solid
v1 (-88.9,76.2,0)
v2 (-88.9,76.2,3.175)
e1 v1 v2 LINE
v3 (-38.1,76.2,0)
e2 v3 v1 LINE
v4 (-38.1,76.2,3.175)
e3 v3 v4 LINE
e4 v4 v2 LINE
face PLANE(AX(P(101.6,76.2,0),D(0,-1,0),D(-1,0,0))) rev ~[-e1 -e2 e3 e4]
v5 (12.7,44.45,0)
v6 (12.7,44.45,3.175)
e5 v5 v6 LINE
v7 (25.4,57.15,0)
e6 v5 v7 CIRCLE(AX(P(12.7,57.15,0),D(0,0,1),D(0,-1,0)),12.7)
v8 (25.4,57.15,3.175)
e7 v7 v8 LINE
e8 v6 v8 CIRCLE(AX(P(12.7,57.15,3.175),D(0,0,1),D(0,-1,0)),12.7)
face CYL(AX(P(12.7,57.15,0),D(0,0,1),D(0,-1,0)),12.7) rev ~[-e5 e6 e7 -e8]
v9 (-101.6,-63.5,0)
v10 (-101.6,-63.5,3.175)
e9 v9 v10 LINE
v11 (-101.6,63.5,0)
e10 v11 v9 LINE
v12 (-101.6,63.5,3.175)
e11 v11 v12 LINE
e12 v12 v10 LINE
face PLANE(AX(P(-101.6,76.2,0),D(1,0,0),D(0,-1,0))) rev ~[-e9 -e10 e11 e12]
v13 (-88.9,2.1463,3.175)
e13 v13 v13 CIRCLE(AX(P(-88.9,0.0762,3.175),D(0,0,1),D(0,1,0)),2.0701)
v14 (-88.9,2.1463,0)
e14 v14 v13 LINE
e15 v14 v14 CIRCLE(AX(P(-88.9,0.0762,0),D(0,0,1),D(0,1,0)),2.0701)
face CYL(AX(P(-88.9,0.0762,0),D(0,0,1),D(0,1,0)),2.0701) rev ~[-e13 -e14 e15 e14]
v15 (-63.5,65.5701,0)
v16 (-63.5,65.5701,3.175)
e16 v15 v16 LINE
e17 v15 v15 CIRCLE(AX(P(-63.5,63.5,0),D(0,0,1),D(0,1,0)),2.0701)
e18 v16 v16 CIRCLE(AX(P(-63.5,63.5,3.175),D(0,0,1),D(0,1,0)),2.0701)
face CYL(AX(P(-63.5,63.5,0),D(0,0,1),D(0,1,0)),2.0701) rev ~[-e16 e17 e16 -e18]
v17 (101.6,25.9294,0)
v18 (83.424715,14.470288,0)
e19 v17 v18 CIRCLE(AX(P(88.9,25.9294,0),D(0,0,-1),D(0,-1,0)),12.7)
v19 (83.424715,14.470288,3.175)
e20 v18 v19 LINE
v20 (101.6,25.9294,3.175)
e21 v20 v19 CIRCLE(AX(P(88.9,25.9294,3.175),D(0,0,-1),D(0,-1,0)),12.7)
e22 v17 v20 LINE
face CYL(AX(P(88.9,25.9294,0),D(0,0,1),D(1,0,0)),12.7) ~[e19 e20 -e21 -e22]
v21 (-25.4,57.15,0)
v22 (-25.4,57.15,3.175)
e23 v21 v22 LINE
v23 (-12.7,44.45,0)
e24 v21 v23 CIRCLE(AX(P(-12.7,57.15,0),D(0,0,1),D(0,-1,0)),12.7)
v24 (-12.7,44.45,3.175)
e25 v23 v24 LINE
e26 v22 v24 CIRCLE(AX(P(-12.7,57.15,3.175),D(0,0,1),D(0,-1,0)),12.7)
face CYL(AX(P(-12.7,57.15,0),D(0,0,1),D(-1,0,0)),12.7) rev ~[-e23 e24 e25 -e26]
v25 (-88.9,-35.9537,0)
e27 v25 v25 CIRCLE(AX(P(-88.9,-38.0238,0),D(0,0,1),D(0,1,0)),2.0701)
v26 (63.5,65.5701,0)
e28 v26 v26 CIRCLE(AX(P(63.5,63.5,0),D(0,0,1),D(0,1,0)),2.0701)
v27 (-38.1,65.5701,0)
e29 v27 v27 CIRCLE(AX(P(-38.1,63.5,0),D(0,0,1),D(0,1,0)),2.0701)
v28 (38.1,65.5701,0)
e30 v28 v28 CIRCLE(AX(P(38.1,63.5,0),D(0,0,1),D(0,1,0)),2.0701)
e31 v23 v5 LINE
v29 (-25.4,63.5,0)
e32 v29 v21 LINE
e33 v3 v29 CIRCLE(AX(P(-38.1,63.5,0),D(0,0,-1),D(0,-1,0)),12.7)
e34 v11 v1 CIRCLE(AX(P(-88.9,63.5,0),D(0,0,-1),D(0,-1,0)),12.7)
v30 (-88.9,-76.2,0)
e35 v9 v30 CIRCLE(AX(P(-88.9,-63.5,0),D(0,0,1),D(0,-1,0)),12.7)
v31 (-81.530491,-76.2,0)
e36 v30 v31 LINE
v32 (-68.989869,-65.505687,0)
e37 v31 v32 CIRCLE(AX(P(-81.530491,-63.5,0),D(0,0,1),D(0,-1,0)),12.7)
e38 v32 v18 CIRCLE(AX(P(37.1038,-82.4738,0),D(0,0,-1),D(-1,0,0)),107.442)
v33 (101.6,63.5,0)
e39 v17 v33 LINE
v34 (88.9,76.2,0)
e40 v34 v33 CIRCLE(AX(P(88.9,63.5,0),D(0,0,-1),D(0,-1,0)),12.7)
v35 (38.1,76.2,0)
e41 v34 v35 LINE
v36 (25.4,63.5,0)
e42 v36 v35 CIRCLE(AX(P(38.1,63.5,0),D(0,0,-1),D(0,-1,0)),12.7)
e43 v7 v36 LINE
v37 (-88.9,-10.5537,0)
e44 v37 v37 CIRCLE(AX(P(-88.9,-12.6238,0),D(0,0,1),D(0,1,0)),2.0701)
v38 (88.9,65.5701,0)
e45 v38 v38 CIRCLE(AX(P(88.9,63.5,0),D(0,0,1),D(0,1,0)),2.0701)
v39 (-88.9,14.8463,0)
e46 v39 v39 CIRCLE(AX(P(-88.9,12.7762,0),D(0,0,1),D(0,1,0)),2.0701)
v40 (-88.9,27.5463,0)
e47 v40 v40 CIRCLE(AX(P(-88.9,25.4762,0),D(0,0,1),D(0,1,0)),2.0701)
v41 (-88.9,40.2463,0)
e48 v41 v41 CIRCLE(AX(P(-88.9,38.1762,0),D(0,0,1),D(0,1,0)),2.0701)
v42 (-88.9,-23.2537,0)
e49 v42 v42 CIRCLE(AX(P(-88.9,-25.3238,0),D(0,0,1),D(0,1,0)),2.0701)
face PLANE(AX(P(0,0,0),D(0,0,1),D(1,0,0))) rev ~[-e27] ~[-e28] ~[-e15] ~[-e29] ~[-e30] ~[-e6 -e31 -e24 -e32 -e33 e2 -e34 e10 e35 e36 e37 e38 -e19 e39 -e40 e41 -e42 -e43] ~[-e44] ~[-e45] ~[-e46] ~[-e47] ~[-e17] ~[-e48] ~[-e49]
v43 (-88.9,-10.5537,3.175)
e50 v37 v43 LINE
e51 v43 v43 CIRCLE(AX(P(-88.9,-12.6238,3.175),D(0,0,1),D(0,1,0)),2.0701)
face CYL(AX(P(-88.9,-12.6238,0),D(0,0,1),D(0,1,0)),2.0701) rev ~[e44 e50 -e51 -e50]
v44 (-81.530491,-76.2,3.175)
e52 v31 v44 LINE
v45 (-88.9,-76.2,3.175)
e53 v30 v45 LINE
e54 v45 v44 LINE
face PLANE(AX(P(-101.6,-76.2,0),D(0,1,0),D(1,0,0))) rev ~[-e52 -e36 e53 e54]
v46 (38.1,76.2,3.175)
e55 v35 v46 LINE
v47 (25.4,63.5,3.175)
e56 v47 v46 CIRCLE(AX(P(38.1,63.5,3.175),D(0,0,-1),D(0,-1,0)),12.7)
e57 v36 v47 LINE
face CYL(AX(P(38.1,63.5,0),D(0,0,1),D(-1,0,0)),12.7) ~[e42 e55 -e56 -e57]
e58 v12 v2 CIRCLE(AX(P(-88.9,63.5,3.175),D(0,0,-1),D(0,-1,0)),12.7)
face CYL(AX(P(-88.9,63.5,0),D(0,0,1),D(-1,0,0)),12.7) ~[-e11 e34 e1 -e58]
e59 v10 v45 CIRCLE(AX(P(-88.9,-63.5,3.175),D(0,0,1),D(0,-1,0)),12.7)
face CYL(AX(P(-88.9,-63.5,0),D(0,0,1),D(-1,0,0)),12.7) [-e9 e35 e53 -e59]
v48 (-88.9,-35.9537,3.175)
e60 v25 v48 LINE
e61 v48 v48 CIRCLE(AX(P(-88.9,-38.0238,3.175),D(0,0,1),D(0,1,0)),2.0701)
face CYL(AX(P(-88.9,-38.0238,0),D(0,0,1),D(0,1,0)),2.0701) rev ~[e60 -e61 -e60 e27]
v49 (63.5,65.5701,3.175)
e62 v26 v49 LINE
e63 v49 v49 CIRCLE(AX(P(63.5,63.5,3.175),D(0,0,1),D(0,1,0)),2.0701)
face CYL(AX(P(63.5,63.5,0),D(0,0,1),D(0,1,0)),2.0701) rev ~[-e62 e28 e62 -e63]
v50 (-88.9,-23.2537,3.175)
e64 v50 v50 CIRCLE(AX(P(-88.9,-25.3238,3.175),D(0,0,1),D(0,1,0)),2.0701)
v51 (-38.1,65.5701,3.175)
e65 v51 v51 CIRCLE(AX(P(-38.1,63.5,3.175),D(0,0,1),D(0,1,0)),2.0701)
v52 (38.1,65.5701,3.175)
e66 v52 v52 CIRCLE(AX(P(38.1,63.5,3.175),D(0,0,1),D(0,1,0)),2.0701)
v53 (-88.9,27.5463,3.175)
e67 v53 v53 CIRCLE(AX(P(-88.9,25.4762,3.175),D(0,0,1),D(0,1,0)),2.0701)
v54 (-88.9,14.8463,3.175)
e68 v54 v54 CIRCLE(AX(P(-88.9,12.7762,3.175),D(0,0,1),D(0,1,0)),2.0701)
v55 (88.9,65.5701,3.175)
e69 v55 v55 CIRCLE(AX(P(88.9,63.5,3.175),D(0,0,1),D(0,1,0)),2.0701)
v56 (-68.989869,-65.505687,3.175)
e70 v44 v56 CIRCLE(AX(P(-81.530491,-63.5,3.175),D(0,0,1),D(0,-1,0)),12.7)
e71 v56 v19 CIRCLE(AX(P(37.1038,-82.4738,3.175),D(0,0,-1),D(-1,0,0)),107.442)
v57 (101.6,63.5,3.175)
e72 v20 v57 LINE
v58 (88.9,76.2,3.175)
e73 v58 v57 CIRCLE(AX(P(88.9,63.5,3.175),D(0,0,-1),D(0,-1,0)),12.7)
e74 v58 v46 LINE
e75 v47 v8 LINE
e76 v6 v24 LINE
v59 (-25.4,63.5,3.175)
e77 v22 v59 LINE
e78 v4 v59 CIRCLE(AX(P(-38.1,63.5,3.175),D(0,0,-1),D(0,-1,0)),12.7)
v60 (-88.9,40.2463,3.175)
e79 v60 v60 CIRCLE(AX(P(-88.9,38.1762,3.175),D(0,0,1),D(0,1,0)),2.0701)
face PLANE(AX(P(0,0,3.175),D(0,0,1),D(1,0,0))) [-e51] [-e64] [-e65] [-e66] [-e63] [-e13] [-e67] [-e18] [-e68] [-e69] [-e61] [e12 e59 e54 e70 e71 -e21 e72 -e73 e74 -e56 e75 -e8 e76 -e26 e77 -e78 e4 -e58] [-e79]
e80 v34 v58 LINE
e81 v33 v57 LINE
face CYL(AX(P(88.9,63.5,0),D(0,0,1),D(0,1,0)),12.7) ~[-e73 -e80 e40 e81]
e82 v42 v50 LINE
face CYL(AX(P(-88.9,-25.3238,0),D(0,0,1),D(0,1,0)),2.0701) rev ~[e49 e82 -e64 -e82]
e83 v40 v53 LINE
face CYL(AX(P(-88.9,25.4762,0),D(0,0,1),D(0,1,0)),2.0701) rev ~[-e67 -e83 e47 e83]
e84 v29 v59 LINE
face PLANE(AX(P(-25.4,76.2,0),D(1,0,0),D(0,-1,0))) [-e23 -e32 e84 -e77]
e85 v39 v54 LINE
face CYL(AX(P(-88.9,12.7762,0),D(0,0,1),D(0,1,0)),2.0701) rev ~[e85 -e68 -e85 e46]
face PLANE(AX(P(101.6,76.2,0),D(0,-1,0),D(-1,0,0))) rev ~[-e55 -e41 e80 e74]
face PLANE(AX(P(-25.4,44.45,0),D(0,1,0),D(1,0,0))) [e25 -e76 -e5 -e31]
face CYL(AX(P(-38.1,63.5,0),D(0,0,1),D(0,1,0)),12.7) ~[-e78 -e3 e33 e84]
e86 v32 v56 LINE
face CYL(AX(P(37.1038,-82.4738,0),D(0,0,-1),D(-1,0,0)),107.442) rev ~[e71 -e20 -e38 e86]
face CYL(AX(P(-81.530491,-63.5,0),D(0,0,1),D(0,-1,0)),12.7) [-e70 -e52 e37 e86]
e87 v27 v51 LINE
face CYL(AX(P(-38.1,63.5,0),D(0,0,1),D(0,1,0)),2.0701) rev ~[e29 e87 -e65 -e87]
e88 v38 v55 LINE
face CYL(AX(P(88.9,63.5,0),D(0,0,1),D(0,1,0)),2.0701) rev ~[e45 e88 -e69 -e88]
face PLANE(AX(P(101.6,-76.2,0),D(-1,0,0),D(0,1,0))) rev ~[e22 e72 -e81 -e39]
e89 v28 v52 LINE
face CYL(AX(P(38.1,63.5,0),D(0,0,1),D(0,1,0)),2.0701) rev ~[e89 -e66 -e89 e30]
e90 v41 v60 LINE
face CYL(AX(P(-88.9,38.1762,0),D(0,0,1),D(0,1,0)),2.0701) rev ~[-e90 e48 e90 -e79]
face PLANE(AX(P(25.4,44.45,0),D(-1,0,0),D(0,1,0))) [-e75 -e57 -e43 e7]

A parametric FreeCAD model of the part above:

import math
import FreeCAD as App
import Part
import Sketcher
from FreeCAD import Vector
Q = App.Units.Quantity


def edges_at(feature, points):
    """Names of the edges that pass closest to the given points."""
    edges = feature.Shape.Edges
    near = lambda p: min(range(len(edges)), key=lambda i: edges[i].distToShape(Part.Vertex(*p))[0])
    return sorted({f"Edge{near(p) + 1}" for p in points})

doc = App.newDocument("Part")
body = doc.addObject("PartDesign::Body", "Body")

# Sketch on XY plane
sketch1 = body.newObject("Sketcher::SketchObject", "Sketch")
sketch1.AttachmentSupport = (doc.getObject("XY_Plane"), [""])
sketch1.MapMode = "FlatFace"
sketch1.addGeometry([
    Part.LineSegment(Vector(-101.6, 76.2, 0), Vector(-101.6, -76.2, 0)),
    Part.LineSegment(Vector(-101.6, -76.2, 0), Vector(101.6, -76.2, 0)),
    Part.LineSegment(Vector(101.6, -76.2, 0), Vector(101.6, 76.2, 0)),
    Part.LineSegment(Vector(101.6, 76.2, 0), Vector(-101.6, 76.2, 0)),
], False)
sketch1.addConstraint([
    Sketcher.Constraint("Coincident", 0, 2, 1, 1),
    Sketcher.Constraint("Coincident", 1, 2, 2, 1),
    Sketcher.Constraint("Coincident", 2, 2, 3, 1),
    Sketcher.Constraint("Coincident", 3, 2, 0, 1),
    Sketcher.Constraint("Vertical", 0),
    Sketcher.Constraint("Horizontal", 1),
    Sketcher.Constraint("Vertical", 2),
    Sketcher.Constraint("Horizontal", 3),
    Sketcher.Constraint("Symmetric", 0, 2, 2, 2, -1, 1),
    Sketcher.Constraint("DistanceX", 1, 1, 1, 2, Q("8 in")),
    Sketcher.Constraint("DistanceY", 0, 2, 0, 1, Q("6 in")),
])
pad1 = body.newObject("PartDesign::Pad", "Pad")
pad1.Profile = sketch1
pad1.Length = Q("0.125 in")

# Sketch on XY plane
sketch2 = body.newObject("Sketcher::SketchObject", "Sketch001")
sketch2.AttachmentSupport = (doc.getObject("XY_Plane"), [""])
sketch2.MapMode = "FlatFace"
sketch2.addGeometry([
    Part.LineSegment(Vector(101.6, -76.2, 0), Vector(-70.1549, -76.2, 0)),
    Part.ArcOfCircle(Part.Circle(Vector(37.1038, -82.4738, 0), Vector(0, 0, 1), 107.442), math.radians(53.109422), math.radians(176.652457)),
    Part.LineSegment(Vector(101.6, 3.4565, 0), Vector(101.6, -76.2, 0)),
], False)
sketch2.addConstraint([
    Sketcher.Constraint("Coincident", 0, 2, 1, 2),
    Sketcher.Constraint("Coincident", 1, 1, 2, 1),
    Sketcher.Constraint("Coincident", 2, 2, 0, 1),
    Sketcher.Constraint("Horizontal", 0),
    Sketcher.Constraint("Vertical", 2),
    Sketcher.Constraint("Radius", 1, Q("4.23 in")),
    Sketcher.Constraint("DistanceY", 0, 2, -1, 1, Q("3 in")),
    Sketcher.Constraint("DistanceX", -1, 1, 1, 1, Q("4 in")),
    Sketcher.Constraint("DistanceX", 0, 2, 0, 1, Q("6.762 in")),
    Sketcher.Constraint("DistanceY", 1, 3, -1, 1, Q("3.247 in")),
])
pocket1 = body.newObject("PartDesign::Pocket", "Pocket")
pocket1.Profile = sketch2
pocket1.Length = Q("1 in")
pocket1.Reversed = True
doc.recompute()

fillet = body.newObject("PartDesign::Fillet", "Fillet")
fillet.Base = (pocket1, edges_at(pocket1, [
    (101.6, 76.2, 1.587),
    (-101.6, 76.2, 1.587),
    (-101.6, -76.2, 1.587),
    (-70.155, -76.2, 1.587),
    (101.6, 3.457, 1.587),
]))
fillet.Radius = Q("0.5 in")

# Sketch on XY plane
sketch3 = body.newObject("Sketcher::SketchObject", "Sketch002")
sketch3.AttachmentSupport = (doc.getObject("XY_Plane"), [""])
sketch3.MapMode = "FlatFace"
sketch3.addGeometry([
    Part.Circle(Vector(88.9, 63.5, 0), Vector(0, 0, 1), 2.0701),  # 0
    Part.Circle(Vector(63.5, 63.5, 0), Vector(0, 0, 1), 2.0701),  # 1
    Part.Circle(Vector(38.1, 63.5, 0), Vector(0, 0, 1), 2.0701),  # 2
    Part.Circle(Vector(12.7, 63.5, 0), Vector(0, 0, 1), 2.0701),  # 3
    Part.Circle(Vector(-12.7, 63.5, 0), Vector(0, 0, 1), 2.0701),  # 4
    Part.Circle(Vector(-38.1, 63.5, 0), Vector(0, 0, 1), 2.0701),  # 5
    Part.Circle(Vector(-63.5, 63.5, 0), Vector(0, 0, 1), 2.0701),  # 6
    Part.Circle(Vector(-88.9, 12.7762, 0), Vector(0, 0, 1), 2.0701),  # 7
    Part.Circle(Vector(-88.9, 0.0762, 0), Vector(0, 0, 1), 2.0701),  # 8
    Part.Circle(Vector(-88.9, -12.6238, 0), Vector(0, 0, 1), 2.0701),  # 9
    Part.Circle(Vector(-88.9, -25.3238, 0), Vector(0, 0, 1), 2.0701),  # 10
    Part.Circle(Vector(-88.9, -38.0238, 0), Vector(0, 0, 1), 2.0701),  # 11
    Part.Circle(Vector(-88.9, 25.4762, 0), Vector(0, 0, 1), 2.0701),  # 12
    Part.Circle(Vector(-88.9, 38.1762, 0), Vector(0, 0, 1), 2.0701),  # 13
], False)
sketch3.addConstraint([
    Sketcher.Constraint("Equal", 0, 1),
    Sketcher.Constraint("Equal", 1, 2),
    Sketcher.Constraint("Equal", 2, 3),
    Sketcher.Constraint("Equal", 3, 4),
    Sketcher.Constraint("Equal", 4, 5),
    Sketcher.Constraint("Equal", 5, 6),
    Sketcher.Constraint("Equal", 6, 7),
    Sketcher.Constraint("Equal", 7, 8),
    Sketcher.Constraint("Equal", 8, 9),
    Sketcher.Constraint("Equal", 9, 10),
    Sketcher.Constraint("Equal", 10, 11),
    Sketcher.Constraint("Equal", 11, 12),
    Sketcher.Constraint("Equal", 12, 13),
    Sketcher.Constraint("Symmetric", 3, 3, 4, 3, -2),
    Sketcher.Constraint("Symmetric", 2, 3, 5, 3, -2),
    Sketcher.Constraint("Symmetric", 1, 3, 6, 3, -2),
    Sketcher.Constraint("Horizontal", 0, 3, 1, 3),
    Sketcher.Constraint("Horizontal", 1, 3, 2, 3),
    Sketcher.Constraint("Horizontal", 2, 3, 3, 3),
    Sketcher.Constraint("Vertical", 7, 3, 8, 3),
    Sketcher.Constraint("Vertical", 8, 3, 9, 3),
    Sketcher.Constraint("Vertical", 9, 3, 10, 3),
    Sketcher.Constraint("Vertical", 10, 3, 11, 3),
    Sketcher.Constraint("Vertical", 11, 3, 12, 3),
    Sketcher.Constraint("Vertical", 12, 3, 13, 3),
    Sketcher.Constraint("Diameter", 0, Q("0.163 in")),
    Sketcher.Constraint("DistanceX", 1, 3, 0, 3, Q("1 in")),
    Sketcher.Constraint("DistanceX", 2, 3, 1, 3, Q("1 in")),
    Sketcher.Constraint("DistanceX", 3, 3, 2, 3, Q("1 in")),
    Sketcher.Constraint("DistanceX", 4, 3, 3, 3, Q("1 in")),
    Sketcher.Constraint("DistanceX", 7, 3, 6, 3, Q("1 in")),
    Sketcher.Constraint("DistanceY", 9, 3, 7, 3, Q("1 in")),
    Sketcher.Constraint("DistanceY", 10, 3, 8, 3, Q("1 in")),
    Sketcher.Constraint("DistanceY", 11, 3, 9, 3, Q("1 in")),
    Sketcher.Constraint("DistanceY", 8, 3, 12, 3, Q("1 in")),
    Sketcher.Constraint("DistanceY", 7, 3, 13, 3, Q("1 in")),
    Sketcher.Constraint("DistanceY", -1, 1, 0, 3, Q("2.5 in")),
    Sketcher.Constraint("DistanceY", 8, 3, 7, 3, Q("0.5 in")),
    Sketcher.Constraint("DistanceY", -1, 1, 7, 3, Q("0.503 in")),
])
doc.recompute()
hole = body.newObject("PartDesign::Hole", "Hole")
hole.Profile = sketch3
hole.ThreadType = "None"
hole.Diameter = Q("0.163 in")
hole.DepthType = "ThroughAll"
hole.Reversed = True

# Sketch on XY plane
sketch4 = body.newObject("Sketcher::SketchObject", "Sketch003")
sketch4.AttachmentSupport = (doc.getObject("XY_Plane"), [""])
sketch4.MapMode = "FlatFace"
sketch4.addGeometry([
    Part.LineSegment(Vector(-25.4, 76.2, 0), Vector(25.4, 76.2, 0)),
    Part.LineSegment(Vector(25.4, 76.2, 0), Vector(25.4, 44.45, 0)),
    Part.LineSegment(Vector(25.4, 44.45, 0), Vector(-25.4, 44.45, 0)),
    Part.LineSegment(Vector(-25.4, 44.45, 0), Vector(-25.4, 76.2, 0)),
], False)
sketch4.addConstraint([
    Sketcher.Constraint("Coincident", 0, 2, 1, 1),
    Sketcher.Constraint("Coincident", 1, 2, 2, 1),
    Sketcher.Constraint("Coincident", 2, 2, 3, 1),
    Sketcher.Constraint("Coincident", 3, 2, 0, 1),
    Sketcher.Constraint("Horizontal", 0),
    Sketcher.Constraint("Vertical", 1),
    Sketcher.Constraint("Horizontal", 2),
    Sketcher.Constraint("Vertical", 3),
    Sketcher.Constraint("DistanceX", 0, 1, 0, 2, Q("2 in")),
    Sketcher.Constraint("DistanceY", -1, 1, 0, 2, Q("3 in")),
    Sketcher.Constraint("DistanceY", 1, 2, 1, 1, Q("1.25 in")),
    Sketcher.Constraint("DistanceX", -1, 1, 0, 2, Q("1 in")),
])
pocket2 = body.newObject("PartDesign::Pocket", "Pocket001")
pocket2.Profile = sketch4
pocket2.Type = "ThroughAll"
pocket2.Reversed = True
doc.recompute()

fillet2 = body.newObject("PartDesign::Fillet", "Fillet001")
fillet2.Base = (pocket2, edges_at(pocket2, [
    (25.4, 76.2, 1.587),
    (25.4, 44.45, 1.587),
    (-25.4, 44.45, 1.587),
    (-25.4, 76.2, 1.587),
]))
fillet2.Radius = Q("0.5 in")

doc.recompute()
